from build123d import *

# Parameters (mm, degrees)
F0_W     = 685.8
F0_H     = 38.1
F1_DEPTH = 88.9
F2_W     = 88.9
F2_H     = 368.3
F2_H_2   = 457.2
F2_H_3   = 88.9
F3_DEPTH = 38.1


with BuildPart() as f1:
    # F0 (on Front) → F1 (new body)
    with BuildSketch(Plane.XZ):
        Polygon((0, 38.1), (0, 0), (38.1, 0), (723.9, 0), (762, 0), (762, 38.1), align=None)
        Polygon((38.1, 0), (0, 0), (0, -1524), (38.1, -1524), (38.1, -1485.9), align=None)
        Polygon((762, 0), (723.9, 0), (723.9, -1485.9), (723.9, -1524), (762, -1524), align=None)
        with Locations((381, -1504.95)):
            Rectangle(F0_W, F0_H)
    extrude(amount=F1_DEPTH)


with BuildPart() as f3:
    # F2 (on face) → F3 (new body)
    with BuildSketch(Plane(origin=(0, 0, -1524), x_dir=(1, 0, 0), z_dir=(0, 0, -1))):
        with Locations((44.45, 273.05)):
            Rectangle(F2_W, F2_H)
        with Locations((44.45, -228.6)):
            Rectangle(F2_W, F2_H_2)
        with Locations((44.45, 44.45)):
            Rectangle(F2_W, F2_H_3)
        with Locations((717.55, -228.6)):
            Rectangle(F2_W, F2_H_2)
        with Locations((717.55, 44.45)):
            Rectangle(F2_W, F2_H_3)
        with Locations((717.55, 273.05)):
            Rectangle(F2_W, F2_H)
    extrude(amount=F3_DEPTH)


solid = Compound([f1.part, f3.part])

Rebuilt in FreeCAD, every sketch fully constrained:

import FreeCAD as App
import Part
import Sketcher

V = App.Vector
Q = App.Units.Quantity


def add_polygon(sketch, points):
    """Adds a closed chain of lines whose ends are joined by coincident constraints."""
    first, n = sketch.GeometryCount, len(points)
    for a, b in zip(points, points[1:] + points[:1]):
        sketch.addGeometry(Part.LineSegment(App.Vector(*a, 0), App.Vector(*b, 0)), False)
    for i in range(n):
        sketch.addConstraint(Sketcher.Constraint("Coincident", first + i, 2, first + (i + 1) % n, 1))

doc = App.newDocument("Part")
body = doc.addObject("PartDesign::Body", "Body")

# Sketch on XZ plane
sketch1 = body.newObject("Sketcher::SketchObject", "Sketch")
sketch1.AttachmentSupport = (doc.getObject("XZ_Plane"), [""])
sketch1.MapMode = "FlatFace"
add_polygon(sketch1, [(0, 38), (0, -1524), (762, -1524), (762, 38)])  # lines 0-3
add_polygon(sketch1, [(38, -1486), (38, 0), (724, 0), (724, -1486)])  # lines 4-7
sketch1.addConstraint(Sketcher.Constraint("Vertical", 0))
sketch1.addConstraint(Sketcher.Constraint("Horizontal", 1))
sketch1.addConstraint(Sketcher.Constraint("Vertical", 2))
sketch1.addConstraint(Sketcher.Constraint("Horizontal", 3))
sketch1.addConstraint(Sketcher.Constraint("Vertical", 4))
sketch1.addConstraint(Sketcher.Constraint("Horizontal", 5))
sketch1.addConstraint(Sketcher.Constraint("Vertical", 6))
sketch1.addConstraint(Sketcher.Constraint("Horizontal", 7))
sketch1.addConstraint(Sketcher.Constraint("PointOnObject", 0, 2, -2))
sketch1.addConstraint(Sketcher.Constraint("PointOnObject", 4, 2, -1))
sketch1.addConstraint(Sketcher.Constraint("DistanceX", 1, 1, 1, 2, Q("30 in")))
sketch1.addConstraint(Sketcher.Constraint("DistanceX", 5, 1, 5, 2, Q("27 in")))
sketch1.addConstraint(Sketcher.Constraint("DistanceY", 0, 2, 0, 1, Q("61.5 in")))
sketch1.addConstraint(Sketcher.Constraint("DistanceY", 4, 1, 4, 2, Q("58.5 in")))
sketch1.addConstraint(Sketcher.Constraint("DistanceY", 0, 2, -1, 1, Q("60 in")))
sketch1.addConstraint(Sketcher.Constraint("DistanceX", -1, 1, 4, 2, Q("1.5 in")))
pad1 = body.newObject("PartDesign::Pad", "Pad")
pad1.Profile = sketch1
pad1.Length = Q("3.5 in")
body2 = doc.addObject("PartDesign::Body", "Body001")
body2.AllowCompound = True

# Sketch on XY plane
sketch2 = body2.newObject("Sketcher::SketchObject", "Sketch001")
sketch2.AttachmentSupport = (doc.getObject("XY_Plane001"), [""])
sketch2.MapMode = "FlatFace"
sketch2.AttachmentOffset = App.Placement(V(0, 0, -60 * 25.4), App.Rotation())
add_polygon(sketch2, [(0, -457), (0, 457), (89, 457), (89, -457)])  # lines 0-3
add_polygon(sketch2, [(673, 457), (762, 457), (762, -457), (673, -457)])  # lines 4-7
sketch2.addConstraint(Sketcher.Constraint("Vertical", 0))
sketch2.addConstraint(Sketcher.Constraint("Horizontal", 1))
sketch2.addConstraint(Sketcher.Constraint("Vertical", 2))
sketch2.addConstraint(Sketcher.Constraint("Horizontal", 3))
sketch2.addConstraint(Sketcher.Constraint("Horizontal", 4))
sketch2.addConstraint(Sketcher.Constraint("Vertical", 5))
sketch2.addConstraint(Sketcher.Constraint("Horizontal", 6))
sketch2.addConstraint(Sketcher.Constraint("Vertical", 7))
sketch2.addConstraint(Sketcher.Constraint("Symmetric", 0, 2, 3, 2, -1, 1))
sketch2.addConstraint(Sketcher.Constraint("Horizontal", 1, 2, 4, 2))
sketch2.addConstraint(Sketcher.Constraint("Horizontal", 3, 2, 5, 2))
sketch2.addConstraint(Sketcher.Constraint("Equal", 3, 4))
sketch2.addConstraint(Sketcher.Constraint("DistanceY", 0, 1, 0, 2, Q("36 in")))
sketch2.addConstraint(Sketcher.Constraint("DistanceX", 1, 1, 1, 2, Q("3.5 in")))
sketch2.addConstraint(Sketcher.Constraint("DistanceX", -1, 1, 4, 2, Q("30 in")))
pad2 = body2.newObject("PartDesign::Pad", "Pad001")
pad2.Profile = sketch2
pad2.Length = Q("1.5 in")
pad2.Reversed = True

doc.recompute()
